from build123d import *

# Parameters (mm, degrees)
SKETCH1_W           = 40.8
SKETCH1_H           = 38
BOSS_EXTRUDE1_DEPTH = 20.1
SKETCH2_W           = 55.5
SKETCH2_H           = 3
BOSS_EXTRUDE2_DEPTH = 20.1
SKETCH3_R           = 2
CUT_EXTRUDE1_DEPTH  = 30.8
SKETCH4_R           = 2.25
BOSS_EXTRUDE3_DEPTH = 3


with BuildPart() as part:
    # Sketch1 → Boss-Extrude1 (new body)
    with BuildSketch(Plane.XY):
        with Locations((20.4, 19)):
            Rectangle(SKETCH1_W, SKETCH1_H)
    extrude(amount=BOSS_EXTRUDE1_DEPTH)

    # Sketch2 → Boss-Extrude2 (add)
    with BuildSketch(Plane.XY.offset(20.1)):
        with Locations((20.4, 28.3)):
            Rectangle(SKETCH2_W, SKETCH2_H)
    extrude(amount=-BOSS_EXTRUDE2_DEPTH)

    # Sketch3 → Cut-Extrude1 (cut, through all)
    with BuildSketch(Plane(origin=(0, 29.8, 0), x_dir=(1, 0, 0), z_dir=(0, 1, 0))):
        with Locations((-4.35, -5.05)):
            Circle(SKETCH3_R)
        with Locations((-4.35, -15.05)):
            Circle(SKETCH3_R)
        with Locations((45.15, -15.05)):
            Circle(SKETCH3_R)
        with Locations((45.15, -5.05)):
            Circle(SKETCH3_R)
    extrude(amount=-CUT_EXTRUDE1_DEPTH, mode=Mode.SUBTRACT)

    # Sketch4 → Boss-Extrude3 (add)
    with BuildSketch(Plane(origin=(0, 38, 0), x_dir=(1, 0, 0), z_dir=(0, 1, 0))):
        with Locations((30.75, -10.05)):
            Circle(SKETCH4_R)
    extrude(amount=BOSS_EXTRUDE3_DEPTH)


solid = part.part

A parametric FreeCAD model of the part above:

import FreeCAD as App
import Part
import Sketcher
from FreeCAD import Vector
Q = App.Units.Quantity


def add_polygon(sketch, points):
    """Adds a closed chain of lines whose ends are joined by coincident constraints."""
    first, n = sketch.GeometryCount, len(points)
    for a, b in zip(points, points[1:] + points[:1]):
        sketch.addGeometry(Part.LineSegment(App.Vector(*a, 0), App.Vector(*b, 0)), False)
    for i in range(n):
        sketch.addConstraint(Sketcher.Constraint("Coincident", first + i, 2, first + (i + 1) % n, 1))

doc = App.newDocument("Part")
body = doc.addObject("PartDesign::Body", "Body")

sketch1 = body.newObject("Sketcher::SketchObject", "Sketch")
sketch1.AttachmentSupport = (doc.getObject("XY_Plane"), [""])
sketch1.MapMode = "FlatFace"
add_polygon(sketch1, [(0, 38), (0, 0), (41, 0), (41, 38)])
sketch1.addConstraint([
    Sketcher.Constraint("Vertical", 0),
    Sketcher.Constraint("Horizontal", 1),
    Sketcher.Constraint("Vertical", 2),
    Sketcher.Constraint("Horizontal", 3),
    Sketcher.Constraint("Coincident", 0, 2, -1, 1),
    Sketcher.Constraint("DistanceY", 0, 2, 0, 1, Q("38 mm")),
    Sketcher.Constraint("DistanceX", 1, 1, 1, 2, Q("40.8 mm")),
])
pad1 = body.newObject("PartDesign::Pad", "Pad")
pad1.Profile = sketch1
pad1.Length = 20.1

sketch2 = body.newObject("Sketcher::SketchObject", "Sketch001")
sketch2.AttachmentSupport = (doc.getObject("XY_Plane"), [""])
sketch2.MapMode = "FlatFace"
sketch2.AttachmentOffset = App.Placement(Vector(0, 0, 20.1), App.Rotation())
add_polygon(sketch2, [(-7.3, 29.8), (-7.3, 26.8), (48.1, 26.8), (48.1, 29.8)])
sketch2.addConstraint([
    Sketcher.Constraint("Vertical", 0),
    Sketcher.Constraint("Horizontal", 1),
    Sketcher.Constraint("Vertical", 2),
    Sketcher.Constraint("Horizontal", 3),
    Sketcher.Constraint("DistanceY", 0, 2, 0, 1, Q("3 mm")),
    Sketcher.Constraint("DistanceX", 1, 1, 1, 2, Q("55.5 mm")),
    Sketcher.Constraint("DistanceY", -1, 1, 0, 2, Q("26.8 mm")),
    Sketcher.Constraint("DistanceX", 0, 2, -1, 1, Q("7.35 mm")),
])
pad2 = body.newObject("PartDesign::Pad", "Pad001")
pad2.Profile = sketch2
pad2.Length = 20.1
pad2.Reversed = True

sketch3 = body.newObject("Sketcher::SketchObject", "Sketch002")
sketch3.AttachmentSupport = (doc.getObject("XZ_Plane"), [""])
sketch3.MapMode = "FlatFace"
sketch3.AttachmentOffset = App.Placement(Vector(0, 0, -29.8), App.Rotation())
sketch3.addGeometry([
    Part.Circle(Vector(-4.3, 5, 0), Vector(0, 0, 1), 2),
    Part.Circle(Vector(-4.3, 15.1, 0), Vector(0, 0, 1), 2),
    Part.Circle(Vector(45.1, 15.1, 0), Vector(0, 0, 1), 2),
    Part.Circle(Vector(45.1, 5, 0), Vector(0, 0, 1), 2),
], False)
sketch3.addConstraint([
    Sketcher.Constraint("Equal", 0, 1),
    Sketcher.Constraint("Equal", 1, 2),
    Sketcher.Constraint("Equal", 2, 3),
    Sketcher.Constraint("Horizontal", 1, 3, 2, 3),
    Sketcher.Constraint("Horizontal", 0, 3, 3, 3),
    Sketcher.Constraint("Vertical", 0, 3, 1, 3),
    Sketcher.Constraint("Vertical", 2, 3, 3, 3),
    Sketcher.Constraint("Diameter", 0, Q("4 mm")),
    Sketcher.Constraint("DistanceY", 0, 3, 1, 3, Q("10 mm")),
    Sketcher.Constraint("DistanceX", 1, 3, 2, 3, Q("49.5 mm")),
    Sketcher.Constraint("DistanceX", 0, 3, -1, 1, Q("4.35 mm")),
    Sketcher.Constraint("DistanceY", -1, 1, 0, 3, Q("5.05 mm")),
])
pocket1 = body.newObject("PartDesign::Pocket", "Pocket")
pocket1.Profile = sketch3
pocket1.Type = "ThroughAll"
pocket1.Reversed = True

sketch4 = body.newObject("Sketcher::SketchObject", "Sketch003")
sketch4.AttachmentSupport = (doc.getObject("XZ_Plane"), [""])
sketch4.MapMode = "FlatFace"
sketch4.AttachmentOffset = App.Placement(Vector(0, 0, -38), App.Rotation())
sketch4.addGeometry(Part.Circle(Vector(30.8, 10.1, 0), Vector(0, 0, 1), 2.2), False)
sketch4.addConstraint([
    Sketcher.Constraint("Diameter", 0, Q("4.5 mm")),
    Sketcher.Constraint("DistanceX", -1, 1, 0, 3, Q("30.75 mm")),
    Sketcher.Constraint("DistanceY", -1, 1, 0, 3, Q("10.05 mm")),
])
pad3 = body.newObject("PartDesign::Pad", "Pad002")
pad3.Profile = sketch4
pad3.Length = 3
pad3.Reversed = True

doc.recompute()
